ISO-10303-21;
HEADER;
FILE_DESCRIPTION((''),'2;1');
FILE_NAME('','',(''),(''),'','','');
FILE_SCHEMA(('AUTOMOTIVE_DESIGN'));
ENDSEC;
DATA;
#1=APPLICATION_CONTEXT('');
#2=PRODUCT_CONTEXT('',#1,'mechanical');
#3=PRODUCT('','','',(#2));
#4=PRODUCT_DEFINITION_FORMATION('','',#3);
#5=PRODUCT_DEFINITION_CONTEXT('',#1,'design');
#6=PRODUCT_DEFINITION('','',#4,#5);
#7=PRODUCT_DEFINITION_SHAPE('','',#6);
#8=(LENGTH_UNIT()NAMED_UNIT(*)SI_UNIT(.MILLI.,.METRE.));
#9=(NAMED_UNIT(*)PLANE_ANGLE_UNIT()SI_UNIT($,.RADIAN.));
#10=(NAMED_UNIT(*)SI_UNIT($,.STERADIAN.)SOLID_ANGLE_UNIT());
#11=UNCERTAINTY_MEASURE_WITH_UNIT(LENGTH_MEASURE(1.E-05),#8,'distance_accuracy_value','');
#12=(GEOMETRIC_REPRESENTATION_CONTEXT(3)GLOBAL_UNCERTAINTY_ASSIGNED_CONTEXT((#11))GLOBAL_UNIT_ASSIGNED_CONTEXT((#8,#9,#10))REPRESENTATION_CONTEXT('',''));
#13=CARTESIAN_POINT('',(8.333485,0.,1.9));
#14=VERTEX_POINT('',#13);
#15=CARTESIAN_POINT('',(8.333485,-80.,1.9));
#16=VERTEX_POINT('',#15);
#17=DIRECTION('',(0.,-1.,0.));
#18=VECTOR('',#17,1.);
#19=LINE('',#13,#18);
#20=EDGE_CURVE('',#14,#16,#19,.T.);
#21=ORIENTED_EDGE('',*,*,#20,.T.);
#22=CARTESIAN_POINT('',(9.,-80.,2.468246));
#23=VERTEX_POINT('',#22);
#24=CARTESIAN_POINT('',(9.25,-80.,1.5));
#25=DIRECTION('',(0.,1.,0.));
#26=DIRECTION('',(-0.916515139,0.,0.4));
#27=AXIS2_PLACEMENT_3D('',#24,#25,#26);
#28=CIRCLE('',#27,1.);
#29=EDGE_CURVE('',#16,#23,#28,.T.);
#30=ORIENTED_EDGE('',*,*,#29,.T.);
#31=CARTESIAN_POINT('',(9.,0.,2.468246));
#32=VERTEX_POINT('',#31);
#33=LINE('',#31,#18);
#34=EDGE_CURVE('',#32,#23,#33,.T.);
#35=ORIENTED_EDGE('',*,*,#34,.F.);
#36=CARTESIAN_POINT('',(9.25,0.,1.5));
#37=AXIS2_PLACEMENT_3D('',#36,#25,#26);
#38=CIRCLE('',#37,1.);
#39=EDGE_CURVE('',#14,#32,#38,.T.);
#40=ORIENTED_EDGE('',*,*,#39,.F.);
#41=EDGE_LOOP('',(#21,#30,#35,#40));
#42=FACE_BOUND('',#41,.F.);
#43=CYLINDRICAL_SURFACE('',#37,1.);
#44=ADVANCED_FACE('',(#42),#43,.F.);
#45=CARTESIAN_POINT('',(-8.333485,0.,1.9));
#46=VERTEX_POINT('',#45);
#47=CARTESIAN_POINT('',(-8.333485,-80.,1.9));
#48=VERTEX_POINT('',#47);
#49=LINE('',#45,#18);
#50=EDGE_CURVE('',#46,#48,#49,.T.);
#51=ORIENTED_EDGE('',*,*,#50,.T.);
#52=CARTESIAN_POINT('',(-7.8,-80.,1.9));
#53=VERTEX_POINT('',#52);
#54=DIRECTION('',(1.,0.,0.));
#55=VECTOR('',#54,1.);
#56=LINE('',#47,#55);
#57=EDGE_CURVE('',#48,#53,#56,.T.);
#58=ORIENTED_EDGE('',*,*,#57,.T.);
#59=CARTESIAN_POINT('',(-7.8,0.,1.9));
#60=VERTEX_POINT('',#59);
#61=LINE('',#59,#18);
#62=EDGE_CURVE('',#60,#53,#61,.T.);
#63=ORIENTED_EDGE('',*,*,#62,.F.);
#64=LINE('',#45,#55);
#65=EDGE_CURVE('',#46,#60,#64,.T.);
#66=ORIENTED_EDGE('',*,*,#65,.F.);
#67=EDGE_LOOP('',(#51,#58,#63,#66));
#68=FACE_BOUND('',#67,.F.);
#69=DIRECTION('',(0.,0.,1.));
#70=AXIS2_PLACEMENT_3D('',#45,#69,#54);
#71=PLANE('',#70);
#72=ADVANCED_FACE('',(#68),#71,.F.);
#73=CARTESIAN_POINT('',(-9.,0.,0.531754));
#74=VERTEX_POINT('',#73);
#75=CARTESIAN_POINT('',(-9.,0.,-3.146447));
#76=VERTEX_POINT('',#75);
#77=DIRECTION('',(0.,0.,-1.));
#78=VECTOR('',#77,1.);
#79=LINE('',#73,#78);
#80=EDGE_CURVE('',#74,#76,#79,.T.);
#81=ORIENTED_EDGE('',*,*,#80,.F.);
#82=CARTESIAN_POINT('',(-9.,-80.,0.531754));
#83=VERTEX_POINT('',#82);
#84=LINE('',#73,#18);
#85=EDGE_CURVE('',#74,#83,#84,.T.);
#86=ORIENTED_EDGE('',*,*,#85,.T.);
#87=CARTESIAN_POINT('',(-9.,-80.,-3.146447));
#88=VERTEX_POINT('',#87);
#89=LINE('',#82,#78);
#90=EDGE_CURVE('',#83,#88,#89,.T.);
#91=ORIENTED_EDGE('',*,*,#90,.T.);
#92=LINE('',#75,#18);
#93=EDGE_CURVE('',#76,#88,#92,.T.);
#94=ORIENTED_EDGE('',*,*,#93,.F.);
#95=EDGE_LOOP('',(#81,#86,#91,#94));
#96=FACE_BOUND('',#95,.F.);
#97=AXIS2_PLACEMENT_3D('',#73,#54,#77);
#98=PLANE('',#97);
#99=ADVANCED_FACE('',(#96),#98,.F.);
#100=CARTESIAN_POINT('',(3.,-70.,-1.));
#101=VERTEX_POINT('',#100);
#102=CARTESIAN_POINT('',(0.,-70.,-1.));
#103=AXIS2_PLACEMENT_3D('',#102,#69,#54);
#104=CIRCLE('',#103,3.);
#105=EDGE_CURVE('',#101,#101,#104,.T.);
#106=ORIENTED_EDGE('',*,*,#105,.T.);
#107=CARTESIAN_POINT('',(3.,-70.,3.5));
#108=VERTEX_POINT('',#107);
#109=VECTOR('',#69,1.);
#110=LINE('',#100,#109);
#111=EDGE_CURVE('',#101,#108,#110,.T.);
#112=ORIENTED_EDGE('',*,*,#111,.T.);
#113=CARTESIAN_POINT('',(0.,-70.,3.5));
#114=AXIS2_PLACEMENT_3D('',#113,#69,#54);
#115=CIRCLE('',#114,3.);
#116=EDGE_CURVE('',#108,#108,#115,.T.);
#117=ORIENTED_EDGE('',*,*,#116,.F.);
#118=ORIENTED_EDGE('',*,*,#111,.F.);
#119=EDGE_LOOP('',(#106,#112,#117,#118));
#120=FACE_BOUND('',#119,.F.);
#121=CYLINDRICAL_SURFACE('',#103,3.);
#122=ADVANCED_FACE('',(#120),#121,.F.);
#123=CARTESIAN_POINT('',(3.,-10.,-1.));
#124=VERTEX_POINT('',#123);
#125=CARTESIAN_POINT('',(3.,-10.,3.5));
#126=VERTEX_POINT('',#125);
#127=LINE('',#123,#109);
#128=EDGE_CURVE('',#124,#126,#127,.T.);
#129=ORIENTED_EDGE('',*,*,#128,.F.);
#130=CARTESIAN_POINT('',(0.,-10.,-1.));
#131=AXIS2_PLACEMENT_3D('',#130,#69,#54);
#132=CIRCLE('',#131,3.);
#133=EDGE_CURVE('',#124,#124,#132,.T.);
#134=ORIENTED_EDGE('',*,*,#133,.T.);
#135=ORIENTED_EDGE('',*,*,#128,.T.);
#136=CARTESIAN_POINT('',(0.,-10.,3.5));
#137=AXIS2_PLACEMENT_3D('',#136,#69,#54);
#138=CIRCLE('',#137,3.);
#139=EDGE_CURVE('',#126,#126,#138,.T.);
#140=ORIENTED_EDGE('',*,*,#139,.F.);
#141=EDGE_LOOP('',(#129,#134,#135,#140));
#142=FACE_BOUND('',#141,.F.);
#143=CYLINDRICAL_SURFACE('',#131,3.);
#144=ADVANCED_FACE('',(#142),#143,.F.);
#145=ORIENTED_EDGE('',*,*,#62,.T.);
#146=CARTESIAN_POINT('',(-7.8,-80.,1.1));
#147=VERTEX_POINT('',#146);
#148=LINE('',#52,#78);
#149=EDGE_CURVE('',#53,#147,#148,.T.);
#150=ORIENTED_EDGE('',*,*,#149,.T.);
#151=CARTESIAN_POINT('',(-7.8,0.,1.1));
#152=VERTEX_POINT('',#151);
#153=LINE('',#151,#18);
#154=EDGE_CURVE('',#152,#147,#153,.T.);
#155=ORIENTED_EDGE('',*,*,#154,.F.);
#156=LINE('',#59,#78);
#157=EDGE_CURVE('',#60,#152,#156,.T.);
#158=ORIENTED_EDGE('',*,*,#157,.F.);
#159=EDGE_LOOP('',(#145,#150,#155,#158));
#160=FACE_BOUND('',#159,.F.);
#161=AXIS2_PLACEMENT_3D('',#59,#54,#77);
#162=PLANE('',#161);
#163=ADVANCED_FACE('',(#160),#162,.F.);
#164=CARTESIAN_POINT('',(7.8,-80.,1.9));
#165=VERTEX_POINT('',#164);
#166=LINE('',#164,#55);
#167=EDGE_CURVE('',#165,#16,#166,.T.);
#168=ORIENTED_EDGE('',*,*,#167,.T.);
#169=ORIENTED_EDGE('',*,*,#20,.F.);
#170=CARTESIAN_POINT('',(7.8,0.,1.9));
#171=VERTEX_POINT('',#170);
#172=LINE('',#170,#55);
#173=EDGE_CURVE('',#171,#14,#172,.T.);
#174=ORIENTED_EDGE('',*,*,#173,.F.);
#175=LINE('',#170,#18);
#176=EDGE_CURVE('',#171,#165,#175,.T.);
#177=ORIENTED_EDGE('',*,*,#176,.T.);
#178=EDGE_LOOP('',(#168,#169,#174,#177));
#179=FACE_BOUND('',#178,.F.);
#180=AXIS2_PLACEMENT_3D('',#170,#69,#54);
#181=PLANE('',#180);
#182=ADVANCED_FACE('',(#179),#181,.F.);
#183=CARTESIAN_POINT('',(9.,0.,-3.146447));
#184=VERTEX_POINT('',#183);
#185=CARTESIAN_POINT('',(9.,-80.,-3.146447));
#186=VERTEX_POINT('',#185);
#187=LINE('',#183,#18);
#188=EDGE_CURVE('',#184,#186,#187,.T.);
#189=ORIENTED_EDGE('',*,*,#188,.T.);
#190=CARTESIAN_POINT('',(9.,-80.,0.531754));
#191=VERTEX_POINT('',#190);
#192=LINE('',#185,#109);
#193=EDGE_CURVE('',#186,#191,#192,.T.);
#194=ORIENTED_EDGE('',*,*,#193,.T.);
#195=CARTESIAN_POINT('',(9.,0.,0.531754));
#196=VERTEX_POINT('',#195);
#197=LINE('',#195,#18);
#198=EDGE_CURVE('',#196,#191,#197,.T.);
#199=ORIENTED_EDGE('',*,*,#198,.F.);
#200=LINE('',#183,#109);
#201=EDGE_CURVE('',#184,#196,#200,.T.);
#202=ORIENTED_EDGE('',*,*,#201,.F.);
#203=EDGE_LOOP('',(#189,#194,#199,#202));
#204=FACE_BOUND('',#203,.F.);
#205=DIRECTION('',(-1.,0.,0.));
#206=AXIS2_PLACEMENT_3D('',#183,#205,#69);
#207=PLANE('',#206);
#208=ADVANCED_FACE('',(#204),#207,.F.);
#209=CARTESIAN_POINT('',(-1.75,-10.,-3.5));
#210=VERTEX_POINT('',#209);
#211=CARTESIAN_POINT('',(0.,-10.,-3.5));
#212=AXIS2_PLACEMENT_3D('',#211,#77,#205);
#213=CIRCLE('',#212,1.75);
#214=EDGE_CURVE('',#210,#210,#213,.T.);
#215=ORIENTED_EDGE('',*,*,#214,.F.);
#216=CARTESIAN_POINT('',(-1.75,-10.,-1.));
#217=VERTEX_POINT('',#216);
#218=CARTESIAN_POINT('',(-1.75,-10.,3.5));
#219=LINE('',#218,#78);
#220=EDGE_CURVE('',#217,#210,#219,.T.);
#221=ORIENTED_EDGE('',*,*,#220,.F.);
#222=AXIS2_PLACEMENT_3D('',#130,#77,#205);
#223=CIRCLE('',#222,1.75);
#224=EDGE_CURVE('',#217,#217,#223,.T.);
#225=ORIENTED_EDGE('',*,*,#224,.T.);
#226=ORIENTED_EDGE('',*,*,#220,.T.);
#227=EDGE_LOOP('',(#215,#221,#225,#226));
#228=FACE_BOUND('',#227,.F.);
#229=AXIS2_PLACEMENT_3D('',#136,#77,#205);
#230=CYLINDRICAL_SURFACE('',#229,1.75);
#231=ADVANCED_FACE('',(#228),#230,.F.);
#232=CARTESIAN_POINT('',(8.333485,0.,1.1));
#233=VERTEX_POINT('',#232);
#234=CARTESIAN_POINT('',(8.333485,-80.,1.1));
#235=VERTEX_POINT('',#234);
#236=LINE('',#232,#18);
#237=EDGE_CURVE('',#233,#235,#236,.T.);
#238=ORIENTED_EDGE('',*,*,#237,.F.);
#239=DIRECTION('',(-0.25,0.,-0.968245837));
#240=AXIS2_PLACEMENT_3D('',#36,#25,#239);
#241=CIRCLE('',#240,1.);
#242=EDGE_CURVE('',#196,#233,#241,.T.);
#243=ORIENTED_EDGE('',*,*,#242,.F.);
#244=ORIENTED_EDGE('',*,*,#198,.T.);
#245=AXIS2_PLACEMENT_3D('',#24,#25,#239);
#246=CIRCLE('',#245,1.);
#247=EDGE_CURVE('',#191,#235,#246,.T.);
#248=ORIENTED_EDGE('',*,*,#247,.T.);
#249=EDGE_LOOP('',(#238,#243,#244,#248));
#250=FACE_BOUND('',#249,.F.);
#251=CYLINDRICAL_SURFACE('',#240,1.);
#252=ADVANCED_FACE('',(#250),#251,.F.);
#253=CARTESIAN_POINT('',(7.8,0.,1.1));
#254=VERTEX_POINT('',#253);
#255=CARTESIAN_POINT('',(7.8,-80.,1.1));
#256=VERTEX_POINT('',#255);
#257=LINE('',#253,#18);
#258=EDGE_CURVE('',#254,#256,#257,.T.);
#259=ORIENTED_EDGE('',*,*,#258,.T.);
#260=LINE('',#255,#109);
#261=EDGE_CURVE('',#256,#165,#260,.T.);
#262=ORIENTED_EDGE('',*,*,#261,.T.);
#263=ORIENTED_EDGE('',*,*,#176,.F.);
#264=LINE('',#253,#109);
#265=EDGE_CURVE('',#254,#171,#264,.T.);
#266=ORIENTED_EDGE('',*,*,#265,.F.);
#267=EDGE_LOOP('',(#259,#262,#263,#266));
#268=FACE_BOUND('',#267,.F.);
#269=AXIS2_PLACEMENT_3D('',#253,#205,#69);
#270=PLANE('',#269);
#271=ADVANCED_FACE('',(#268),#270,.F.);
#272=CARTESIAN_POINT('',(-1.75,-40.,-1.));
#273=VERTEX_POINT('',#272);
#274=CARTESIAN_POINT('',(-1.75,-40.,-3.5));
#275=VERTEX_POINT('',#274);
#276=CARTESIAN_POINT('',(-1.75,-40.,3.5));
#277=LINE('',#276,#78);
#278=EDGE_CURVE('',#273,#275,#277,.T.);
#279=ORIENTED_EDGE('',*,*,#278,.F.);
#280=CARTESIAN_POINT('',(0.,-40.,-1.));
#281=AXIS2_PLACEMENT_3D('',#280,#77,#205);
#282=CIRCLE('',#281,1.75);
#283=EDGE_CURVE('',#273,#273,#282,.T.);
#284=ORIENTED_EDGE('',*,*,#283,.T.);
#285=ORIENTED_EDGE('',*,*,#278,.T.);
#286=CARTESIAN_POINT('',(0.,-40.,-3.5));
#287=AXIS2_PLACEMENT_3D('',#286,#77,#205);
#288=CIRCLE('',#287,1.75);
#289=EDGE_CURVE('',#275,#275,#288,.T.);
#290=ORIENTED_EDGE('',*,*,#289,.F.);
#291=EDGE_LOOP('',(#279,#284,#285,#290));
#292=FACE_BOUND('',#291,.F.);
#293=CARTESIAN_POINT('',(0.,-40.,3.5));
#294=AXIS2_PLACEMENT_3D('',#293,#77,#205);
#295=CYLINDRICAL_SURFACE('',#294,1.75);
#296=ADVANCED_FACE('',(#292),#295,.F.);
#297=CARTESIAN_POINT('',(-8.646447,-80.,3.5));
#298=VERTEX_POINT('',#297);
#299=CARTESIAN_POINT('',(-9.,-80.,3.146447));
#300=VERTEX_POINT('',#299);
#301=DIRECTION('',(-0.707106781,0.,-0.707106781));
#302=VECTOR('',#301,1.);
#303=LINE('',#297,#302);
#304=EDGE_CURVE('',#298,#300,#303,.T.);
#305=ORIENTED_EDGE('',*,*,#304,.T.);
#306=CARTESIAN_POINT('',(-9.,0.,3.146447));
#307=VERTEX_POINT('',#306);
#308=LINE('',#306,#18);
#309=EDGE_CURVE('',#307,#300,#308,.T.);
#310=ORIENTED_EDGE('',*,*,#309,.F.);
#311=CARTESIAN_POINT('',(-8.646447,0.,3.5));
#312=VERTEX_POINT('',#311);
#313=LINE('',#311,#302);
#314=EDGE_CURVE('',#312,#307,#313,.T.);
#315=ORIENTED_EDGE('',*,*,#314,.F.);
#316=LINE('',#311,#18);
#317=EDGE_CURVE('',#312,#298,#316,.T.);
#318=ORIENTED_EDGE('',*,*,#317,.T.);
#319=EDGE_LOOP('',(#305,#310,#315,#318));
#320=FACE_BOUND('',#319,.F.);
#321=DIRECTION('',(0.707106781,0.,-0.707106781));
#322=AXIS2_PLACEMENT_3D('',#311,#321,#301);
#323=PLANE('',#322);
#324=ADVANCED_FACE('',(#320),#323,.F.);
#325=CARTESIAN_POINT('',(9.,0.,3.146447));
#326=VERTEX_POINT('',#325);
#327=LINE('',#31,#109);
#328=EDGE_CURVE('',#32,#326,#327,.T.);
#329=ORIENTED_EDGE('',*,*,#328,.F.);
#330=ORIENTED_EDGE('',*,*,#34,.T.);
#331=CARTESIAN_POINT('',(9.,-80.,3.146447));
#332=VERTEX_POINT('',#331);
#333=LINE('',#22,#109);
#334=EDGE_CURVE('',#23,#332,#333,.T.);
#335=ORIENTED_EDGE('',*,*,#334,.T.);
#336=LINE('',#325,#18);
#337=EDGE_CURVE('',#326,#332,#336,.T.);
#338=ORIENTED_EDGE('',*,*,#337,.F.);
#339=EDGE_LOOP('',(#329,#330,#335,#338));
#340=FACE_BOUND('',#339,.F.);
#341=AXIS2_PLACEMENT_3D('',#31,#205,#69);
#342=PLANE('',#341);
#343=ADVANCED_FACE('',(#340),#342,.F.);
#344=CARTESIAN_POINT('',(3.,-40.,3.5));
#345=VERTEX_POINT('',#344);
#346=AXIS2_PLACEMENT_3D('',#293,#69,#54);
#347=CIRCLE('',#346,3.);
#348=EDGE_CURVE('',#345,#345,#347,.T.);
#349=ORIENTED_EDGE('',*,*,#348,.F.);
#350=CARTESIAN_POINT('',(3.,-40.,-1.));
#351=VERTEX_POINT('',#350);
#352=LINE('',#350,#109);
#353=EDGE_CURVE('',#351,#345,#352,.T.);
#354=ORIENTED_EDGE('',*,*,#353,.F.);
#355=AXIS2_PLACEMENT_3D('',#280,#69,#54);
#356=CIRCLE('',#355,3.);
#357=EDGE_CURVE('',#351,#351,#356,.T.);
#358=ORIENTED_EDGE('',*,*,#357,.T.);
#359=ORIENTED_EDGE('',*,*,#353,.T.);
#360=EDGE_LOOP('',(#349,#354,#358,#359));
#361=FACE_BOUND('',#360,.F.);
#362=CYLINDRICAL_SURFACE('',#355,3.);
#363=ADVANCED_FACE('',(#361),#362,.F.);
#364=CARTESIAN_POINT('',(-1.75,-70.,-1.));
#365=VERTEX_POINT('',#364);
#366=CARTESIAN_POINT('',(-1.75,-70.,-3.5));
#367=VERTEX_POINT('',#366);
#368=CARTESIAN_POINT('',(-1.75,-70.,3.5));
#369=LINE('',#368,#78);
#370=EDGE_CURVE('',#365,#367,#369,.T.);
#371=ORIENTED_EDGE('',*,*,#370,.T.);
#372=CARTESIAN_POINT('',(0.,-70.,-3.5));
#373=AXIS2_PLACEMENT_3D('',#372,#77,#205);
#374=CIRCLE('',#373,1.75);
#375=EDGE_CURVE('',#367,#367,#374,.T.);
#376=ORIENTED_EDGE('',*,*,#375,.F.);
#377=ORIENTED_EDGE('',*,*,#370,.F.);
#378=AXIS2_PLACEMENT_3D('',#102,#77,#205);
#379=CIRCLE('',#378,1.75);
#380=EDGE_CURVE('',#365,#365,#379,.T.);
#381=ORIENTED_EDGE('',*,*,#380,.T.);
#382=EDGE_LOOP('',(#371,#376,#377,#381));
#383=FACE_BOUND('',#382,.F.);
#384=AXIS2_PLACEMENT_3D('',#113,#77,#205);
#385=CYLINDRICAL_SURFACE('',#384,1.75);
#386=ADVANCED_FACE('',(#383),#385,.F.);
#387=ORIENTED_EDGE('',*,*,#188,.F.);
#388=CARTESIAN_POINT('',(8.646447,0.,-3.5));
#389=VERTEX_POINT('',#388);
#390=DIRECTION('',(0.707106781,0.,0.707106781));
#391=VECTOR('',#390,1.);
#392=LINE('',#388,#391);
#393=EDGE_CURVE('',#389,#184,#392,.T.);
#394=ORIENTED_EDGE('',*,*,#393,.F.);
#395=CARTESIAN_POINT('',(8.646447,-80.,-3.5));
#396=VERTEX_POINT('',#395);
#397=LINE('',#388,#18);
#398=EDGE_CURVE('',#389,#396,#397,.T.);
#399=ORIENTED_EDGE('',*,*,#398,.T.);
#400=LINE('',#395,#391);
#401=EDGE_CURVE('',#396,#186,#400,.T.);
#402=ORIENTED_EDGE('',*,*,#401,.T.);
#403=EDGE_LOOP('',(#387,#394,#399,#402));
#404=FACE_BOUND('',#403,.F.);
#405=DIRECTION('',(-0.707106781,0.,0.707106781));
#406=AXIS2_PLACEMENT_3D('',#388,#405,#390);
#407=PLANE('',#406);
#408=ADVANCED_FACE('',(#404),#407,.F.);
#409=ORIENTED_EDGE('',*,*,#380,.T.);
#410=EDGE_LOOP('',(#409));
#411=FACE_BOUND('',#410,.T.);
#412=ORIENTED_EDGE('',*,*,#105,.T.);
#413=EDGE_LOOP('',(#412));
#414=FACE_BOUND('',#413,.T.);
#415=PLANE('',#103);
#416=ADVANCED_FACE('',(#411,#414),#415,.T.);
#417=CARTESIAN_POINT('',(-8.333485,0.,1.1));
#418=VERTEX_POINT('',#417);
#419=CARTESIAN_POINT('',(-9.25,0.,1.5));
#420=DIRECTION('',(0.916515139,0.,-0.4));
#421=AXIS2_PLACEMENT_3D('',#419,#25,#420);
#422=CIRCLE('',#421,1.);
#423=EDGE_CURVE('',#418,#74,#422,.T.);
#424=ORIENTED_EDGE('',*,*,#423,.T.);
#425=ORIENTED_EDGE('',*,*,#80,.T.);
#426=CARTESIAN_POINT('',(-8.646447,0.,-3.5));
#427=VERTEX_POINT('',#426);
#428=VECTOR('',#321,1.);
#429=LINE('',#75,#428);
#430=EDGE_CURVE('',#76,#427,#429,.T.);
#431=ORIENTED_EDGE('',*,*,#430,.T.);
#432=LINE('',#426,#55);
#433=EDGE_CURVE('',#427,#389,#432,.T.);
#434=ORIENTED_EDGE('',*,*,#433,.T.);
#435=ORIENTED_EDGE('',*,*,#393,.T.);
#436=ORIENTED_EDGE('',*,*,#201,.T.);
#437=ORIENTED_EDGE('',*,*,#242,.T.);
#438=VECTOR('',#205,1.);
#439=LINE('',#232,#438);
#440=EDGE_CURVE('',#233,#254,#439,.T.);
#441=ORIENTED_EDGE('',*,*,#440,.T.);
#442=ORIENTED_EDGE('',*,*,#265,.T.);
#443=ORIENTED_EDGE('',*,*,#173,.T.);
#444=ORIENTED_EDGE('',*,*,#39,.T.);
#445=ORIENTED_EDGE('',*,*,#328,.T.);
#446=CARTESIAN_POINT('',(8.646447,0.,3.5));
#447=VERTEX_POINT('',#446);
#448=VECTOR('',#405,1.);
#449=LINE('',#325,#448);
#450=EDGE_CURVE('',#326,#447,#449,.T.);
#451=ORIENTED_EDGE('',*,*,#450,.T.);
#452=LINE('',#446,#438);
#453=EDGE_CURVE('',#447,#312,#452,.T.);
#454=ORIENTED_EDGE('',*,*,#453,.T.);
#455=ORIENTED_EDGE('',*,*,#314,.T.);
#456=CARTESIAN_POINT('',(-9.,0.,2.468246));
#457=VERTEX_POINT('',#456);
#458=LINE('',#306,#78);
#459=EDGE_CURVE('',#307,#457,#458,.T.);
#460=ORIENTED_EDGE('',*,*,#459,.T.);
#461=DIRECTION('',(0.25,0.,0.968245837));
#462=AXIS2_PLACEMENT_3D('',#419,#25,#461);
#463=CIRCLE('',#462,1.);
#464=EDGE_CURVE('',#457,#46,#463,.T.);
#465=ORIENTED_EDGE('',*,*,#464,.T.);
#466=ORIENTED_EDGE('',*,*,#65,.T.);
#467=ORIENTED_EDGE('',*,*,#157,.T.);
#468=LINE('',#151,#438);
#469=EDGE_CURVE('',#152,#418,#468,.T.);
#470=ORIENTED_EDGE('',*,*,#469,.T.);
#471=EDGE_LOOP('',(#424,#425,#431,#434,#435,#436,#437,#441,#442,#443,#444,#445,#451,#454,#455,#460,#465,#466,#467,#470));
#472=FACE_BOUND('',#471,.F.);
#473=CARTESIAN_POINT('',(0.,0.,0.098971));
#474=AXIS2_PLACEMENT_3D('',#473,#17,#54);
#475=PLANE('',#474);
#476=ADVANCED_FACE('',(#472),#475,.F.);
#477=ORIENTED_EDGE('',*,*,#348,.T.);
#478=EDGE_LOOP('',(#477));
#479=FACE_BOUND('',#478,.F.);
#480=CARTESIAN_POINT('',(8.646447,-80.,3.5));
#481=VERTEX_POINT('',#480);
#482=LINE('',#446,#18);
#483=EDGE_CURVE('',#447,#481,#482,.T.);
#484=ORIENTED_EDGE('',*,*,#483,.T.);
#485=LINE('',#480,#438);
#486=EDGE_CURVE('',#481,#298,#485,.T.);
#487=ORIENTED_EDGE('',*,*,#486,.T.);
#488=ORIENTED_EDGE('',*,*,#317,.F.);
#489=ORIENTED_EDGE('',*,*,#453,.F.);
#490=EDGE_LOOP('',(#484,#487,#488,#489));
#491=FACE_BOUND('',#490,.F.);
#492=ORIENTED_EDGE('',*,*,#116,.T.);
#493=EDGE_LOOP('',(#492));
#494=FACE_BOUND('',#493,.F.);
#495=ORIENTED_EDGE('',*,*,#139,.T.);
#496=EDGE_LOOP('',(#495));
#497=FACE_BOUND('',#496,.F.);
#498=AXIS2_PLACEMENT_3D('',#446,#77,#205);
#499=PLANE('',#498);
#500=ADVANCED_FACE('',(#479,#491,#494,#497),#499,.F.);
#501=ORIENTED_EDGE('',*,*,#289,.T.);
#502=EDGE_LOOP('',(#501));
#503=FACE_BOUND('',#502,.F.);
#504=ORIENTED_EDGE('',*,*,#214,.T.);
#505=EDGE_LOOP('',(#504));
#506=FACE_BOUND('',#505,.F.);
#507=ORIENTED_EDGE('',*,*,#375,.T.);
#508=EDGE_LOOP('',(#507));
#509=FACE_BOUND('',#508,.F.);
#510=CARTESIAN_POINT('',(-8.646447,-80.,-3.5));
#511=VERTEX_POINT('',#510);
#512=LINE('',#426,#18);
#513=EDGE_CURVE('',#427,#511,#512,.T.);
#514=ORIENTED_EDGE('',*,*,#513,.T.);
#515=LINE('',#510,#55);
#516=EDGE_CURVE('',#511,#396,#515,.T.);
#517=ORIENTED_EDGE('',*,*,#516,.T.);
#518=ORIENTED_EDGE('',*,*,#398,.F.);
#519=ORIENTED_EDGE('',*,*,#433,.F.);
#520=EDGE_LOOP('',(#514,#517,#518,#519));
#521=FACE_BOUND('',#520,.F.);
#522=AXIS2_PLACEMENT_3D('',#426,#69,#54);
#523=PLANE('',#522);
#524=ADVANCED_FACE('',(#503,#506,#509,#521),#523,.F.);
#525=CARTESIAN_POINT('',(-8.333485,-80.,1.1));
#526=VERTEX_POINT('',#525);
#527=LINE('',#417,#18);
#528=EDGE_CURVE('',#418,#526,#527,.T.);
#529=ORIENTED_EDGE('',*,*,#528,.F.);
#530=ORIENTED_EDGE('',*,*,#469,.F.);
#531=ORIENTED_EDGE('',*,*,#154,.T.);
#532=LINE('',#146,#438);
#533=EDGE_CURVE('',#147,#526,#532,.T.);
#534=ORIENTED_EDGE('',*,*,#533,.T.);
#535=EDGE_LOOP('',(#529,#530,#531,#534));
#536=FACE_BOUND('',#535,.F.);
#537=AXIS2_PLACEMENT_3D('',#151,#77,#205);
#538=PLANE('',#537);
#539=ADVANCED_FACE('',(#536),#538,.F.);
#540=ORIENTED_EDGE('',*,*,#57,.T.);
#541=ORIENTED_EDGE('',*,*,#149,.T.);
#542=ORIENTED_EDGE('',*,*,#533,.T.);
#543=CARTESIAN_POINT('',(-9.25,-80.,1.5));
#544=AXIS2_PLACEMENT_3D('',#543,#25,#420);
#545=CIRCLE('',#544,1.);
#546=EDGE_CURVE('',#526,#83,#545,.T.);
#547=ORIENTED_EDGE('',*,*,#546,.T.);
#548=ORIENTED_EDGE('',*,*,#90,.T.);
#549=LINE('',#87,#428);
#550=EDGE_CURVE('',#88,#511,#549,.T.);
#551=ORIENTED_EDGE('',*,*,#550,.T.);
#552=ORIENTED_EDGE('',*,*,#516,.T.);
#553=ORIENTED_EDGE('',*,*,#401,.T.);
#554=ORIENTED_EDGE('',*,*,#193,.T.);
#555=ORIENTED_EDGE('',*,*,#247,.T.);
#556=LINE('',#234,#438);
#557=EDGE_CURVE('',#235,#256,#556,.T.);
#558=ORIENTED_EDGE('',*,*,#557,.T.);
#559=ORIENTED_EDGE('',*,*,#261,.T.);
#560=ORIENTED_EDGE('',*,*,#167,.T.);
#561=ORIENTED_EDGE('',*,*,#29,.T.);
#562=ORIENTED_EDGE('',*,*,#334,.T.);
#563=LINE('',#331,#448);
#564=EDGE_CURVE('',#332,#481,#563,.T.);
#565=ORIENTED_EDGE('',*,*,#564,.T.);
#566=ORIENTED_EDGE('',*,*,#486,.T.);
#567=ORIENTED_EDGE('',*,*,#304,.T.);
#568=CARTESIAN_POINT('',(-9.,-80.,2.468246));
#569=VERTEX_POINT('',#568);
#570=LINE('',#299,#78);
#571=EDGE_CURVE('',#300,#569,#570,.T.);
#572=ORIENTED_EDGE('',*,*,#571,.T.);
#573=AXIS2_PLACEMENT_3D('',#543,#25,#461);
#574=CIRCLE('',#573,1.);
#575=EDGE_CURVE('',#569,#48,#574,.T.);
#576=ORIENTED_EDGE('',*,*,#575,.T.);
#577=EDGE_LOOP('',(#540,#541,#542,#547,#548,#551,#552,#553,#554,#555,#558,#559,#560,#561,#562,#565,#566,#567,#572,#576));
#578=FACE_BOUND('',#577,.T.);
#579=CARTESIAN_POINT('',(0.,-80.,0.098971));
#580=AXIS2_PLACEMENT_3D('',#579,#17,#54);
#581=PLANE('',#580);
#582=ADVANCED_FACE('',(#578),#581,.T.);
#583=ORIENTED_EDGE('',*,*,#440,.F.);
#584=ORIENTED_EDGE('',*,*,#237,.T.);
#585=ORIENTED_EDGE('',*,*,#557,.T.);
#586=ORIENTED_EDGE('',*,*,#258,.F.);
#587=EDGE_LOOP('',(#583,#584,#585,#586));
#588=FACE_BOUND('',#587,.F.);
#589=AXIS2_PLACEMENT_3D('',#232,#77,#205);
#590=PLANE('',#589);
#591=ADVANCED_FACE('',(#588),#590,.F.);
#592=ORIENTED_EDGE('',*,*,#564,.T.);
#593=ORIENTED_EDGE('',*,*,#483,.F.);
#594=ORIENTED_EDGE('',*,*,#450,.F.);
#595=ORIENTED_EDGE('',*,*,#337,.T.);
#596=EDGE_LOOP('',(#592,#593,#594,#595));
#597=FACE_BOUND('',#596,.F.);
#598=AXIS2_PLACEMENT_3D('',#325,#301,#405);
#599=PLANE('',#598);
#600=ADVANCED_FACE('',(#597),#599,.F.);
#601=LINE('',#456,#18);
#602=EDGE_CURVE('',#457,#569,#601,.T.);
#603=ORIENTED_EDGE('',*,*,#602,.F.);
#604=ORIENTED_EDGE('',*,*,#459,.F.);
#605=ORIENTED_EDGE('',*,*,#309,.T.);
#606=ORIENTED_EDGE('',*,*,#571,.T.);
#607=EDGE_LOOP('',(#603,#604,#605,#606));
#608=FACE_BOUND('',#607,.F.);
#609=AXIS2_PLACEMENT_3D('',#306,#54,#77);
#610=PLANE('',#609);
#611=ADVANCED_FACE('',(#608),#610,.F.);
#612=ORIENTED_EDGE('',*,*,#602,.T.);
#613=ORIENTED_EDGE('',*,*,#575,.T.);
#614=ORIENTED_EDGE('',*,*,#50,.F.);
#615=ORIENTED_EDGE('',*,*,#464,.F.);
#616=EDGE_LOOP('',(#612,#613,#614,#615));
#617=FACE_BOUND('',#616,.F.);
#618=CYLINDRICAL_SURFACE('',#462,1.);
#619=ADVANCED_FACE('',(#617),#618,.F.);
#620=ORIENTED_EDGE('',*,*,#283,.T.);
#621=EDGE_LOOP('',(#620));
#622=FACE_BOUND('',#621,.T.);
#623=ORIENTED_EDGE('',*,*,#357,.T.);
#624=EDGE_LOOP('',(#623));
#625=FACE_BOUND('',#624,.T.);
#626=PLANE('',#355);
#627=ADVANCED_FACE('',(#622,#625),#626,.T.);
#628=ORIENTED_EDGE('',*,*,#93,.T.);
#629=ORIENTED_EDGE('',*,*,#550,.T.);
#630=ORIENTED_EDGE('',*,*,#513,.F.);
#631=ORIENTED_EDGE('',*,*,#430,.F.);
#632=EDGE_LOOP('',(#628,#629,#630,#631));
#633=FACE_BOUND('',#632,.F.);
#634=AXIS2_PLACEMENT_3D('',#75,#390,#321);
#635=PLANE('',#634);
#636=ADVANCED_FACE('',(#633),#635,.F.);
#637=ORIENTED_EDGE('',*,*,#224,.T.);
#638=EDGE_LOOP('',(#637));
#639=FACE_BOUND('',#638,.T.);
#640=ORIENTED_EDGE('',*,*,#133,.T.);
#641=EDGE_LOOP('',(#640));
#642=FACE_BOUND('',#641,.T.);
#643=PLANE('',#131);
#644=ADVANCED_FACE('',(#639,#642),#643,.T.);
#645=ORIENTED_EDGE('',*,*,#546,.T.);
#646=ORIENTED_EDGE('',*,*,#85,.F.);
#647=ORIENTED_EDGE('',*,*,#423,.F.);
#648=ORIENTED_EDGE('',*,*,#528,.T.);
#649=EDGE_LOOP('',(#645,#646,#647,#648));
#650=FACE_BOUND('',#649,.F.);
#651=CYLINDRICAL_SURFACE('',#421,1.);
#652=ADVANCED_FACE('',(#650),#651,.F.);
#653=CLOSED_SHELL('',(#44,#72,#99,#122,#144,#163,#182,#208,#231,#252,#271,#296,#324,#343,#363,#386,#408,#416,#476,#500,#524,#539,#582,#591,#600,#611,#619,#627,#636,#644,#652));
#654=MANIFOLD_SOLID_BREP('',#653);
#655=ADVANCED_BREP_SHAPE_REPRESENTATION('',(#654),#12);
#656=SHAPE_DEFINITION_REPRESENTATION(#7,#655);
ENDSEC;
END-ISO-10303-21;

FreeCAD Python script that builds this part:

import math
import FreeCAD as App
import Part
import Sketcher

V = App.Vector
Q = App.Units.Quantity

doc = App.newDocument("Part")
body = doc.addObject("PartDesign::Body", "Body")

sketch1 = doc.addObject("Sketcher::SketchObject", "Sketch")
body.addObject(sketch1)
sketch1.AttachmentSupport = (doc.XZ_Plane, [""])
sketch1.MapMode = "FlatFace"
sketch1.addGeometry(Part.LineSegment(V(-8.646447, -3.5, 0), V(8.646447, -3.5, 0)), False)
sketch1.addGeometry(Part.LineSegment(V(8.646447, -3.5, 0), V(9, -3.146447, 0)), False)
sketch1.addGeometry(Part.LineSegment(V(9, -3.146447, 0), V(9, 0.531754, 0)), False)
sketch1.addGeometry(Part.ArcOfCircle(Part.Circle(V(9.25, 1.5, 0), V(0, 0, 1), 1), math.radians(-156.421822), math.radians(-104.477512)), False)
sketch1.addGeometry(Part.LineSegment(V(8.333485, 1.1, 0), V(7.8, 1.1, 0)), False)
sketch1.addGeometry(Part.LineSegment(V(7.8, 1.1, 0), V(7.8, 1.9, 0)), False)
sketch1.addGeometry(Part.LineSegment(V(7.8, 1.9, 0), V(8.333485, 1.9, 0)), False)
sketch1.addGeometry(Part.ArcOfCircle(Part.Circle(V(9.25, 1.5, 0), V(0, 0, 1), 1), math.radians(104.477512), math.radians(156.421822)), False)
sketch1.addGeometry(Part.LineSegment(V(9, 2.468246, 0), V(9, 3.146447, 0)), False)
sketch1.addGeometry(Part.LineSegment(V(9, 3.146447, 0), V(8.646447, 3.5, 0)), False)
sketch1.addGeometry(Part.LineSegment(V(8.646447, 3.5, 0), V(-8.646447, 3.5, 0)), False)
sketch1.addGeometry(Part.LineSegment(V(-8.646447, 3.5, 0), V(-9, 3.146447, 0)), False)
sketch1.addGeometry(Part.LineSegment(V(-9, 3.146447, 0), V(-9, 2.468246, 0)), False)
sketch1.addGeometry(Part.ArcOfCircle(Part.Circle(V(-9.25, 1.5, 0), V(0, 0, 1), 1), math.radians(23.578178), math.radians(75.522488)), False)
sketch1.addGeometry(Part.LineSegment(V(-8.333485, 1.9, 0), V(-7.8, 1.9, 0)), False)
sketch1.addGeometry(Part.LineSegment(V(-7.8, 1.9, 0), V(-7.8, 1.1, 0)), False)
sketch1.addGeometry(Part.LineSegment(V(-7.8, 1.1, 0), V(-8.333485, 1.1, 0)), False)
sketch1.addGeometry(Part.ArcOfCircle(Part.Circle(V(-9.25, 1.5, 0), V(0, 0, 1), 1), math.radians(-75.522488), math.radians(-23.578178)), False)
sketch1.addGeometry(Part.LineSegment(V(-9, 0.531754, 0), V(-9, -3.146447, 0)), False)
sketch1.addGeometry(Part.LineSegment(V(-9, -3.146447, 0), V(-8.646447, -3.5, 0)), False)
sketch1.addConstraint(Sketcher.Constraint("Coincident", 0, 2, 1, 1))
sketch1.addConstraint(Sketcher.Constraint("Coincident", 1, 2, 2, 1))
sketch1.addConstraint(Sketcher.Constraint("Coincident", 2, 2, 3, 2))
sketch1.addConstraint(Sketcher.Constraint("Coincident", 3, 1, 4, 1))
sketch1.addConstraint(Sketcher.Constraint("Coincident", 4, 2, 5, 1))
sketch1.addConstraint(Sketcher.Constraint("Coincident", 5, 2, 6, 1))
sketch1.addConstraint(Sketcher.Constraint("Coincident", 6, 2, 7, 2))
sketch1.addConstraint(Sketcher.Constraint("Coincident", 7, 1, 8, 1))
sketch1.addConstraint(Sketcher.Constraint("Coincident", 8, 2, 9, 1))
sketch1.addConstraint(Sketcher.Constraint("Coincident", 9, 2, 10, 1))
sketch1.addConstraint(Sketcher.Constraint("Coincident", 10, 2, 11, 1))
sketch1.addConstraint(Sketcher.Constraint("Coincident", 11, 2, 12, 1))
sketch1.addConstraint(Sketcher.Constraint("Coincident", 12, 2, 13, 2))
sketch1.addConstraint(Sketcher.Constraint("Coincident", 13, 1, 14, 1))
sketch1.addConstraint(Sketcher.Constraint("Coincident", 14, 2, 15, 1))
sketch1.addConstraint(Sketcher.Constraint("Coincident", 15, 2, 16, 1))
sketch1.addConstraint(Sketcher.Constraint("Coincident", 16, 2, 17, 2))
sketch1.addConstraint(Sketcher.Constraint("Coincident", 17, 1, 18, 1))
sketch1.addConstraint(Sketcher.Constraint("Coincident", 18, 2, 19, 1))
sketch1.addConstraint(Sketcher.Constraint("Coincident", 19, 2, 0, 1))
sketch1.addConstraint(Sketcher.Constraint("Horizontal", 0))
sketch1.addConstraint(Sketcher.Constraint("Vertical", 2))
sketch1.addConstraint(Sketcher.Constraint("Horizontal", 4))
sketch1.addConstraint(Sketcher.Constraint("Vertical", 5))
sketch1.addConstraint(Sketcher.Constraint("Horizontal", 6))
sketch1.addConstraint(Sketcher.Constraint("Vertical", 8))
sketch1.addConstraint(Sketcher.Constraint("Horizontal", 10))
sketch1.addConstraint(Sketcher.Constraint("Vertical", 12))
sketch1.addConstraint(Sketcher.Constraint("Horizontal", 14))
sketch1.addConstraint(Sketcher.Constraint("Vertical", 15))
sketch1.addConstraint(Sketcher.Constraint("Horizontal", 16))
sketch1.addConstraint(Sketcher.Constraint("Vertical", 18))
sketch1.addConstraint(Sketcher.Constraint("Coincident", 7, 3, 3, 3))
sketch1.addConstraint(Sketcher.Constraint("Coincident", 17, 3, 13, 3))
sketch1.addConstraint(Sketcher.Constraint("Equal", 3, 7))
sketch1.addConstraint(Sketcher.Constraint("Equal", 7, 13))
sketch1.addConstraint(Sketcher.Constraint("Equal", 13, 17))
sketch1.addConstraint(Sketcher.Constraint("Symmetric", 0, 2, 10, 2, -1, 1))
sketch1.addConstraint(Sketcher.Constraint("Symmetric", 1, 2, 11, 2, -1, 1))
sketch1.addConstraint(Sketcher.Constraint("Symmetric", 8, 2, 18, 2, -1, 1))
sketch1.addConstraint(Sketcher.Constraint("Symmetric", 3, 3, 13, 3, -2))
sketch1.addConstraint(Sketcher.Constraint("Symmetric", 8, 2, 11, 2, -2))
sketch1.addConstraint(Sketcher.Constraint("Symmetric", 5, 2, 14, 2, -2))
sketch1.addConstraint(Sketcher.Constraint("Perpendicular", 1, 9))
sketch1.addConstraint(Sketcher.Constraint("Perpendicular", 11, 19))
sketch1.addConstraint(Sketcher.Constraint("Horizontal", 4, 2, 15, 2))
sketch1.addConstraint(Sketcher.Constraint("Vertical", 3, 1, 6, 2))
sketch1.addConstraint(Sketcher.Constraint("Vertical", 0, 2, 9, 2))
sketch1.addConstraint(Sketcher.Constraint("Radius", 3, Q("1 mm")))
sketch1.addConstraint(Sketcher.Constraint("DistanceY", 5, 1, 5, 2, Q("0.8 mm")))
sketch1.addConstraint(Sketcher.Constraint("DistanceX", -1, 1, 1, 2, Q("9 mm")))
sketch1.addConstraint(Sketcher.Constraint("DistanceY", 0, 2, 3, 3, Q("5 mm")))
sketch1.addConstraint(Sketcher.Constraint("DistanceY", 3, 3, 9, 2, Q("2 mm")))
sketch1.addConstraint(Sketcher.Constraint("Distance", 1, Q("0.5 mm")))
sketch1.addConstraint(Sketcher.Constraint("DistanceX", -1, 1, 4, 2, Q("7.8 mm")))
sketch1.addConstraint(Sketcher.Constraint("DistanceX", 13, 3, 3, 3, Q("18.5 mm")))
pad1 = doc.addObject("PartDesign::Pad", "Pad")
body.addObject(pad1)
pad1.Profile = sketch1
pad1.Length = 80

sketch2 = doc.addObject("Sketcher::SketchObject", "Sketch001")
body.addObject(sketch2)
sketch2.AttachmentSupport = (doc.XY_Plane, [""])
sketch2.MapMode = "FlatFace"
sketch2.AttachmentOffset = App.Placement(V(0, 0, 3.5), App.Rotation())
sketch2.addGeometry(Part.Circle(V(0, -460, 0), V(0, 0, 1), 1.75), False)
sketch2.addGeometry(Part.Circle(V(0, -1090, 0), V(0, 0, 1), 1.75), False)
sketch2.addGeometry(Part.Circle(V(0, -790, 0), V(0, 0, 1), 1.75), False)
sketch2.addGeometry(Part.Circle(V(0, -160, 0), V(0, 0, 1), 1.75), False)
sketch2.addGeometry(Part.Circle(V(0, -580, 0), V(0, 0, 1), 1.75), False)
sketch2.addGeometry(Part.Circle(V(0, -640, 0), V(0, 0, 1), 1.75), False)
sketch2.addGeometry(Part.Circle(V(0, -190, 0), V(0, 0, 1), 1.75), False)
sketch2.addGeometry(Part.Circle(V(0, -10, 0), V(0, 0, 1), 1.75), False)
sketch2.addGeometry(Part.Circle(V(0, -130, 0), V(0, 0, 1), 1.75), False)
sketch2.addGeometry(Part.Circle(V(0, -730, 0), V(0, 0, 1), 1.75), False)
sketch2.addGeometry(Part.Circle(V(0, -100, 0), V(0, 0, 1), 1.75), False)
sketch2.addGeometry(Part.Circle(V(0, -610, 0), V(0, 0, 1), 1.75), False)
sketch2.addGeometry(Part.Circle(V(0, -40, 0), V(0, 0, 1), 1.75), False)
sketch2.addGeometry(Part.Circle(V(0, -1180, 0), V(0, 0, 1), 1.75), False)
sketch2.addGeometry(Part.Circle(V(0, -340, 0), V(0, 0, 1), 1.75), False)
sketch2.addGeometry(Part.Circle(V(0, -1150, 0), V(0, 0, 1), 1.75), False)
sketch2.addGeometry(Part.Circle(V(0, -1120, 0), V(0, 0, 1), 1.75), False)
sketch2.addGeometry(Part.Circle(V(0, -760, 0), V(0, 0, 1), 1.75), False)
sketch2.addGeometry(Part.Circle(V(0, -940, 0), V(0, 0, 1), 1.75), False)
sketch2.addGeometry(Part.Circle(V(0, -1030, 0), V(0, 0, 1), 1.75), False)
sketch2.addGeometry(Part.Circle(V(0, -700, 0), V(0, 0, 1), 1.75), False)
sketch2.addGeometry(Part.Circle(V(0, -400, 0), V(0, 0, 1), 1.75), False)
sketch2.addGeometry(Part.Circle(V(0, -550, 0), V(0, 0, 1), 1.75), False)
sketch2.addGeometry(Part.Circle(V(0, -490, 0), V(0, 0, 1), 1.75), False)
sketch2.addGeometry(Part.Circle(V(0, -910, 0), V(0, 0, 1), 1.75), False)
sketch2.addGeometry(Part.Circle(V(0, -220, 0), V(0, 0, 1), 1.75), False)
sketch2.addGeometry(Part.Circle(V(0, -670, 0), V(0, 0, 1), 1.75), False)
sketch2.addGeometry(Part.Circle(V(0, -280, 0), V(0, 0, 1), 1.75), False)
sketch2.addGeometry(Part.Circle(V(0, -970, 0), V(0, 0, 1), 1.75), False)
sketch2.addGeometry(Part.Circle(V(0, -850, 0), V(0, 0, 1), 1.75), False)
sketch2.addGeometry(Part.Circle(V(0, -310, 0), V(0, 0, 1), 1.75), False)
sketch2.addGeometry(Part.Circle(V(0, -70, 0), V(0, 0, 1), 1.75), False)
sketch2.addGeometry(Part.Circle(V(0, -1060, 0), V(0, 0, 1), 1.75), False)
sketch2.addGeometry(Part.Circle(V(0, -880, 0), V(0, 0, 1), 1.75), False)
sketch2.addGeometry(Part.Circle(V(0, -1000, 0), V(0, 0, 1), 1.75), False)
sketch2.addGeometry(Part.Circle(V(0, -520, 0), V(0, 0, 1), 1.75), False)
sketch2.addGeometry(Part.Circle(V(0, -250, 0), V(0, 0, 1), 1.75), False)
sketch2.addGeometry(Part.Circle(V(0, -370, 0), V(0, 0, 1), 1.75), False)
sketch2.addGeometry(Part.Circle(V(0, -820, 0), V(0, 0, 1), 1.75), False)
sketch2.addGeometry(Part.Circle(V(0, -430, 0), V(0, 0, 1), 1.75), False)
sketch2.addGeometry(Part.Circle(V(0, -1420, 0), V(0, 0, 1), 1.75), False)
sketch2.addGeometry(Part.Circle(V(0, -1900, 0), V(0, 0, 1), 1.75), False)
sketch2.addGeometry(Part.Circle(V(0, -1450, 0), V(0, 0, 1), 1.75), False)
sketch2.addGeometry(Part.Circle(V(0, -1330, 0), V(0, 0, 1), 1.75), False)
sketch2.addGeometry(Part.Circle(V(0, -1510, 0), V(0, 0, 1), 1.75), False)
sketch2.addGeometry(Part.Circle(V(0, -1540, 0), V(0, 0, 1), 1.75), False)
sketch2.addGeometry(Part.Circle(V(0, -1930, 0), V(0, 0, 1), 1.75), False)
sketch2.addGeometry(Part.Circle(V(0, -1960, 0), V(0, 0, 1), 1.75), False)
sketch2.addGeometry(Part.Circle(V(0, -1480, 0), V(0, 0, 1), 1.75), False)
sketch2.addGeometry(Part.Circle(V(0, -1390, 0), V(0, 0, 1), 1.75), False)
sketch2.addGeometry(Part.Circle(V(0, -1870, 0), V(0, 0, 1), 1.75), False)
sketch2.addGeometry(Part.Circle(V(0, -1570, 0), V(0, 0, 1), 1.75), False)
sketch2.addGeometry(Part.Circle(V(0, -1360, 0), V(0, 0, 1), 1.75), False)
sketch2.addGeometry(Part.Circle(V(0, -1210, 0), V(0, 0, 1), 1.75), False)
sketch2.addGeometry(Part.Circle(V(0, -1810, 0), V(0, 0, 1), 1.75), False)
sketch2.addGeometry(Part.Circle(V(0, -1690, 0), V(0, 0, 1), 1.75), False)
sketch2.addGeometry(Part.Circle(V(0, -1840, 0), V(0, 0, 1), 1.75), False)
sketch2.addGeometry(Part.Circle(V(0, -1630, 0), V(0, 0, 1), 1.75), False)
sketch2.addGeometry(Part.Circle(V(0, -1240, 0), V(0, 0, 1), 1.75), False)
sketch2.addGeometry(Part.Circle(V(0, -1270, 0), V(0, 0, 1), 1.75), False)
sketch2.addGeometry(Part.Circle(V(0, -1600, 0), V(0, 0, 1), 1.75), False)
sketch2.addGeometry(Part.Circle(V(0, -1780, 0), V(0, 0, 1), 1.75), False)
sketch2.addGeometry(Part.Circle(V(0, -1300, 0), V(0, 0, 1), 1.75), False)
sketch2.addGeometry(Part.Circle(V(0, -1720, 0), V(0, 0, 1), 1.75), False)
sketch2.addGeometry(Part.Circle(V(0, -1750, 0), V(0, 0, 1), 1.75), False)
sketch2.addGeometry(Part.Circle(V(0, -1660, 0), V(0, 0, 1), 1.75), False)
sketch2.addConstraint(Sketcher.Constraint("Equal", 0, 1))
sketch2.addConstraint(Sketcher.Constraint("Equal", 1, 2))
sketch2.addConstraint(Sketcher.Constraint("Equal", 2, 3))
sketch2.addConstraint(Sketcher.Constraint("Equal", 3, 4))
sketch2.addConstraint(Sketcher.Constraint("Equal", 4, 5))
sketch2.addConstraint(Sketcher.Constraint("Equal", 5, 6))
sketch2.addConstraint(Sketcher.Constraint("Equal", 6, 7))
sketch2.addConstraint(Sketcher.Constraint("Equal", 7, 8))
sketch2.addConstraint(Sketcher.Constraint("Equal", 8, 9))
sketch2.addConstraint(Sketcher.Constraint("Equal", 9, 10))
sketch2.addConstraint(Sketcher.Constraint("Equal", 10, 11))
sketch2.addConstraint(Sketcher.Constraint("Equal", 11, 12))
sketch2.addConstraint(Sketcher.Constraint("Equal", 12, 13))
sketch2.addConstraint(Sketcher.Constraint("Equal", 13, 14))
sketch2.addConstraint(Sketcher.Constraint("Equal", 14, 15))
sketch2.addConstraint(Sketcher.Constraint("Equal", 15, 16))
sketch2.addConstraint(Sketcher.Constraint("Equal", 16, 17))
sketch2.addConstraint(Sketcher.Constraint("Equal", 17, 18))
sketch2.addConstraint(Sketcher.Constraint("Equal", 18, 19))
sketch2.addConstraint(Sketcher.Constraint("Equal", 19, 20))
sketch2.addConstraint(Sketcher.Constraint("Equal", 20, 21))
sketch2.addConstraint(Sketcher.Constraint("Equal", 21, 22))
sketch2.addConstraint(Sketcher.Constraint("Equal", 22, 23))
sketch2.addConstraint(Sketcher.Constraint("Equal", 23, 24))
sketch2.addConstraint(Sketcher.Constraint("Equal", 24, 25))
sketch2.addConstraint(Sketcher.Constraint("Equal", 25, 26))
sketch2.addConstraint(Sketcher.Constraint("Equal", 26, 27))
sketch2.addConstraint(Sketcher.Constraint("Equal", 27, 28))
sketch2.addConstraint(Sketcher.Constraint("Equal", 28, 29))
sketch2.addConstraint(Sketcher.Constraint("Equal", 29, 30))
sketch2.addConstraint(Sketcher.Constraint("Equal", 30, 31))
sketch2.addConstraint(Sketcher.Constraint("Equal", 31, 32))
sketch2.addConstraint(Sketcher.Constraint("Equal", 32, 33))
sketch2.addConstraint(Sketcher.Constraint("Equal", 33, 34))
sketch2.addConstraint(Sketcher.Constraint("Equal", 34, 35))
sketch2.addConstraint(Sketcher.Constraint("Equal", 35, 36))
sketch2.addConstraint(Sketcher.Constraint("Equal", 36, 37))
sketch2.addConstraint(Sketcher.Constraint("Equal", 37, 38))
sketch2.addConstraint(Sketcher.Constraint("Equal", 38, 39))
sketch2.addConstraint(Sketcher.Constraint("Equal", 39, 40))
sketch2.addConstraint(Sketcher.Constraint("Equal", 40, 41))
sketch2.addConstraint(Sketcher.Constraint("Equal", 41, 42))
sketch2.addConstraint(Sketcher.Constraint("Equal", 42, 43))
sketch2.addConstraint(Sketcher.Constraint("Equal", 43, 44))
sketch2.addConstraint(Sketcher.Constraint("Equal", 44, 45))
sketch2.addConstraint(Sketcher.Constraint("Equal", 45, 46))
sketch2.addConstraint(Sketcher.Constraint("Equal", 46, 47))
sketch2.addConstraint(Sketcher.Constraint("Equal", 47, 48))
sketch2.addConstraint(Sketcher.Constraint("Equal", 48, 49))
sketch2.addConstraint(Sketcher.Constraint("Equal", 49, 50))
sketch2.addConstraint(Sketcher.Constraint("Equal", 50, 51))
sketch2.addConstraint(Sketcher.Constraint("Equal", 51, 52))
sketch2.addConstraint(Sketcher.Constraint("Equal", 52, 53))
sketch2.addConstraint(Sketcher.Constraint("Equal", 53, 54))
sketch2.addConstraint(Sketcher.Constraint("Equal", 54, 55))
sketch2.addConstraint(Sketcher.Constraint("Equal", 55, 56))
sketch2.addConstraint(Sketcher.Constraint("Equal", 56, 57))
sketch2.addConstraint(Sketcher.Constraint("Equal", 57, 58))
sketch2.addConstraint(Sketcher.Constraint("Equal", 58, 59))
sketch2.addConstraint(Sketcher.Constraint("Equal", 59, 60))
sketch2.addConstraint(Sketcher.Constraint("Equal", 60, 61))
sketch2.addConstraint(Sketcher.Constraint("Equal", 61, 62))
sketch2.addConstraint(Sketcher.Constraint("Equal", 62, 63))
sketch2.addConstraint(Sketcher.Constraint("Equal", 63, 64))
sketch2.addConstraint(Sketcher.Constraint("Equal", 64, 65))
sketch2.addConstraint(Sketcher.Constraint("PointOnObject", 0, 3, -2))
sketch2.addConstraint(Sketcher.Constraint("PointOnObject", 1, 3, -2))
sketch2.addConstraint(Sketcher.Constraint("PointOnObject", 2, 3, -2))
sketch2.addConstraint(Sketcher.Constraint("PointOnObject", 3, 3, -2))
sketch2.addConstraint(Sketcher.Constraint("PointOnObject", 4, 3, -2))
sketch2.addConstraint(Sketcher.Constraint("PointOnObject", 5, 3, -2))
sketch2.addConstraint(Sketcher.Constraint("PointOnObject", 6, 3, -2))
sketch2.addConstraint(Sketcher.Constraint("PointOnObject", 7, 3, -2))
sketch2.addConstraint(Sketcher.Constraint("PointOnObject", 8, 3, -2))
sketch2.addConstraint(Sketcher.Constraint("PointOnObject", 9, 3, -2))
sketch2.addConstraint(Sketcher.Constraint("PointOnObject", 10, 3, -2))
sketch2.addConstraint(Sketcher.Constraint("PointOnObject", 11, 3, -2))
sketch2.addConstraint(Sketcher.Constraint("PointOnObject", 12, 3, -2))
sketch2.addConstraint(Sketcher.Constraint("PointOnObject", 13, 3, -2))
sketch2.addConstraint(Sketcher.Constraint("PointOnObject", 14, 3, -2))
sketch2.addConstraint(Sketcher.Constraint("PointOnObject", 15, 3, -2))
sketch2.addConstraint(Sketcher.Constraint("PointOnObject", 16, 3, -2))
sketch2.addConstraint(Sketcher.Constraint("PointOnObject", 17, 3, -2))
sketch2.addConstraint(Sketcher.Constraint("PointOnObject", 18, 3, -2))
sketch2.addConstraint(Sketcher.Constraint("PointOnObject", 19, 3, -2))
sketch2.addConstraint(Sketcher.Constraint("PointOnObject", 20, 3, -2))
sketch2.addConstraint(Sketcher.Constraint("PointOnObject", 21, 3, -2))
sketch2.addConstraint(Sketcher.Constraint("PointOnObject", 22, 3, -2))
sketch2.addConstraint(Sketcher.Constraint("PointOnObject", 23, 3, -2))
sketch2.addConstraint(Sketcher.Constraint("PointOnObject", 24, 3, -2))
sketch2.addConstraint(Sketcher.Constraint("PointOnObject", 25, 3, -2))
sketch2.addConstraint(Sketcher.Constraint("PointOnObject", 26, 3, -2))
sketch2.addConstraint(Sketcher.Constraint("PointOnObject", 27, 3, -2))
sketch2.addConstraint(Sketcher.Constraint("PointOnObject", 28, 3, -2))
sketch2.addConstraint(Sketcher.Constraint("PointOnObject", 29, 3, -2))
sketch2.addConstraint(Sketcher.Constraint("PointOnObject", 30, 3, -2))
sketch2.addConstraint(Sketcher.Constraint("PointOnObject", 31, 3, -2))
sketch2.addConstraint(Sketcher.Constraint("PointOnObject", 32, 3, -2))
sketch2.addConstraint(Sketcher.Constraint("PointOnObject", 33, 3, -2))
sketch2.addConstraint(Sketcher.Constraint("PointOnObject", 34, 3, -2))
sketch2.addConstraint(Sketcher.Constraint("PointOnObject", 35, 3, -2))
sketch2.addConstraint(Sketcher.Constraint("PointOnObject", 36, 3, -2))
sketch2.addConstraint(Sketcher.Constraint("PointOnObject", 37, 3, -2))
sketch2.addConstraint(Sketcher.Constraint("PointOnObject", 38, 3, -2))
sketch2.addConstraint(Sketcher.Constraint("PointOnObject", 39, 3, -2))
sketch2.addConstraint(Sketcher.Constraint("PointOnObject", 40, 3, -2))
sketch2.addConstraint(Sketcher.Constraint("PointOnObject", 41, 3, -2))
sketch2.addConstraint(Sketcher.Constraint("PointOnObject", 42, 3, -2))
sketch2.addConstraint(Sketcher.Constraint("PointOnObject", 43, 3, -2))
sketch2.addConstraint(Sketcher.Constraint("PointOnObject", 44, 3, -2))
sketch2.addConstraint(Sketcher.Constraint("PointOnObject", 45, 3, -2))
sketch2.addConstraint(Sketcher.Constraint("PointOnObject", 46, 3, -2))
sketch2.addConstraint(Sketcher.Constraint("PointOnObject", 47, 3, -2))
sketch2.addConstraint(Sketcher.Constraint("PointOnObject", 48, 3, -2))
sketch2.addConstraint(Sketcher.Constraint("PointOnObject", 49, 3, -2))
sketch2.addConstraint(Sketcher.Constraint("PointOnObject", 50, 3, -2))
sketch2.addConstraint(Sketcher.Constraint("PointOnObject", 51, 3, -2))
sketch2.addConstraint(Sketcher.Constraint("PointOnObject", 52, 3, -2))
sketch2.addConstraint(Sketcher.Constraint("PointOnObject", 53, 3, -2))
sketch2.addConstraint(Sketcher.Constraint("PointOnObject", 54, 3, -2))
sketch2.addConstraint(Sketcher.Constraint("PointOnObject", 55, 3, -2))
sketch2.addConstraint(Sketcher.Constraint("PointOnObject", 56, 3, -2))
sketch2.addConstraint(Sketcher.Constraint("PointOnObject", 57, 3, -2))
sketch2.addConstraint(Sketcher.Constraint("PointOnObject", 58, 3, -2))
sketch2.addConstraint(Sketcher.Constraint("PointOnObject", 59, 3, -2))
sketch2.addConstraint(Sketcher.Constraint("PointOnObject", 60, 3, -2))
sketch2.addConstraint(Sketcher.Constraint("PointOnObject", 61, 3, -2))
sketch2.addConstraint(Sketcher.Constraint("PointOnObject", 62, 3, -2))
sketch2.addConstraint(Sketcher.Constraint("PointOnObject", 63, 3, -2))
sketch2.addConstraint(Sketcher.Constraint("PointOnObject", 64, 3, -2))
sketch2.addConstraint(Sketcher.Constraint("PointOnObject", 65, 3, -2))
sketch2.addConstraint(Sketcher.Constraint("Diameter", 0, Q("3.5 mm")))
sketch2.addConstraint(Sketcher.Constraint("DistanceY", 0, 3, -1, 1, Q("460 mm")))
sketch2.addConstraint(Sketcher.Constraint("DistanceY", 1, 3, -1, 1, Q("1090 mm")))
sketch2.addConstraint(Sketcher.Constraint("DistanceY", 2, 3, -1, 1, Q("790 mm")))
sketch2.addConstraint(Sketcher.Constraint("DistanceY", 3, 3, -1, 1, Q("160 mm")))
sketch2.addConstraint(Sketcher.Constraint("DistanceY", 4, 3, -1, 1, Q("580 mm")))
sketch2.addConstraint(Sketcher.Constraint("DistanceY", 5, 3, -1, 1, Q("640 mm")))
sketch2.addConstraint(Sketcher.Constraint("DistanceY", 6, 3, -1, 1, Q("190 mm")))
sketch2.addConstraint(Sketcher.Constraint("DistanceY", 7, 3, -1, 1, Q("10 mm")))
sketch2.addConstraint(Sketcher.Constraint("DistanceY", 8, 3, -1, 1, Q("130 mm")))
sketch2.addConstraint(Sketcher.Constraint("DistanceY", 9, 3, -1, 1, Q("730 mm")))
sketch2.addConstraint(Sketcher.Constraint("DistanceY", 10, 3, -1, 1, Q("100 mm")))
sketch2.addConstraint(Sketcher.Constraint("DistanceY", 11, 3, -1, 1, Q("610 mm")))
sketch2.addConstraint(Sketcher.Constraint("DistanceY", 12, 3, -1, 1, Q("40 mm")))
sketch2.addConstraint(Sketcher.Constraint("DistanceY", 13, 3, -1, 1, Q("1180 mm")))
sketch2.addConstraint(Sketcher.Constraint("DistanceY", 14, 3, -1, 1, Q("340 mm")))
sketch2.addConstraint(Sketcher.Constraint("DistanceY", 15, 3, -1, 1, Q("1150 mm")))
sketch2.addConstraint(Sketcher.Constraint("DistanceY", 16, 3, -1, 1, Q("1120 mm")))
sketch2.addConstraint(Sketcher.Constraint("DistanceY", 17, 3, -1, 1, Q("760 mm")))
sketch2.addConstraint(Sketcher.Constraint("DistanceY", 18, 3, -1, 1, Q("940 mm")))
sketch2.addConstraint(Sketcher.Constraint("DistanceY", 19, 3, -1, 1, Q("1030 mm")))
sketch2.addConstraint(Sketcher.Constraint("DistanceY", 20, 3, -1, 1, Q("700 mm")))
sketch2.addConstraint(Sketcher.Constraint("DistanceY", 21, 3, -1, 1, Q("400 mm")))
sketch2.addConstraint(Sketcher.Constraint("DistanceY", 22, 3, -1, 1, Q("550 mm")))
sketch2.addConstraint(Sketcher.Constraint("DistanceY", 23, 3, -1, 1, Q("490 mm")))
sketch2.addConstraint(Sketcher.Constraint("DistanceY", 24, 3, -1, 1, Q("910 mm")))
sketch2.addConstraint(Sketcher.Constraint("DistanceY", 25, 3, -1, 1, Q("220 mm")))
sketch2.addConstraint(Sketcher.Constraint("DistanceY", 26, 3, -1, 1, Q("670 mm")))
sketch2.addConstraint(Sketcher.Constraint("DistanceY", 27, 3, -1, 1, Q("280 mm")))
sketch2.addConstraint(Sketcher.Constraint("DistanceY", 28, 3, -1, 1, Q("970 mm")))
sketch2.addConstraint(Sketcher.Constraint("DistanceY", 29, 3, -1, 1, Q("850 mm")))
sketch2.addConstraint(Sketcher.Constraint("DistanceY", 30, 3, -1, 1, Q("310 mm")))
sketch2.addConstraint(Sketcher.Constraint("DistanceY", 31, 3, -1, 1, Q("70 mm")))
sketch2.addConstraint(Sketcher.Constraint("DistanceY", 32, 3, -1, 1, Q("1060 mm")))
sketch2.addConstraint(Sketcher.Constraint("DistanceY", 33, 3, -1, 1, Q("880 mm")))
sketch2.addConstraint(Sketcher.Constraint("DistanceY", 34, 3, -1, 1, Q("1000 mm")))
sketch2.addConstraint(Sketcher.Constraint("DistanceY", 35, 3, -1, 1, Q("520 mm")))
sketch2.addConstraint(Sketcher.Constraint("DistanceY", 36, 3, -1, 1, Q("250 mm")))
sketch2.addConstraint(Sketcher.Constraint("DistanceY", 37, 3, -1, 1, Q("370 mm")))
sketch2.addConstraint(Sketcher.Constraint("DistanceY", 38, 3, -1, 1, Q("820 mm")))
sketch2.addConstraint(Sketcher.Constraint("DistanceY", 39, 3, -1, 1, Q("430 mm")))
sketch2.addConstraint(Sketcher.Constraint("DistanceY", 40, 3, -1, 1, Q("1420 mm")))
sketch2.addConstraint(Sketcher.Constraint("DistanceY", 41, 3, -1, 1, Q("1900 mm")))
sketch2.addConstraint(Sketcher.Constraint("DistanceY", 42, 3, -1, 1, Q("1450 mm")))
sketch2.addConstraint(Sketcher.Constraint("DistanceY", 43, 3, -1, 1, Q("1330 mm")))
sketch2.addConstraint(Sketcher.Constraint("DistanceY", 44, 3, -1, 1, Q("1510 mm")))
sketch2.addConstraint(Sketcher.Constraint("DistanceY", 45, 3, -1, 1, Q("1540 mm")))
sketch2.addConstraint(Sketcher.Constraint("DistanceY", 46, 3, -1, 1, Q("1930 mm")))
sketch2.addConstraint(Sketcher.Constraint("DistanceY", 47, 3, -1, 1, Q("1960 mm")))
sketch2.addConstraint(Sketcher.Constraint("DistanceY", 48, 3, -1, 1, Q("1480 mm")))
sketch2.addConstraint(Sketcher.Constraint("DistanceY", 49, 3, -1, 1, Q("1390 mm")))
sketch2.addConstraint(Sketcher.Constraint("DistanceY", 50, 3, -1, 1, Q("1870 mm")))
sketch2.addConstraint(Sketcher.Constraint("DistanceY", 51, 3, -1, 1, Q("1570 mm")))
sketch2.addConstraint(Sketcher.Constraint("DistanceY", 52, 3, -1, 1, Q("1360 mm")))
sketch2.addConstraint(Sketcher.Constraint("DistanceY", 53, 3, -1, 1, Q("1210 mm")))
sketch2.addConstraint(Sketcher.Constraint("DistanceY", 54, 3, -1, 1, Q("1810 mm")))
sketch2.addConstraint(Sketcher.Constraint("DistanceY", 55, 3, -1, 1, Q("1690 mm")))
sketch2.addConstraint(Sketcher.Constraint("DistanceY", 56, 3, -1, 1, Q("1840 mm")))
sketch2.addConstraint(Sketcher.Constraint("DistanceY", 57, 3, -1, 1, Q("1630 mm")))
sketch2.addConstraint(Sketcher.Constraint("DistanceY", 58, 3, -1, 1, Q("1240 mm")))
sketch2.addConstraint(Sketcher.Constraint("DistanceY", 59, 3, -1, 1, Q("1270 mm")))
sketch2.addConstraint(Sketcher.Constraint("DistanceY", 60, 3, -1, 1, Q("1600 mm")))
sketch2.addConstraint(Sketcher.Constraint("DistanceY", 61, 3, -1, 1, Q("1780 mm")))
sketch2.addConstraint(Sketcher.Constraint("DistanceY", 62, 3, -1, 1, Q("1300 mm")))
sketch2.addConstraint(Sketcher.Constraint("DistanceY", 63, 3, -1, 1, Q("1720 mm")))
sketch2.addConstraint(Sketcher.Constraint("DistanceY", 64, 3, -1, 1, Q("1750 mm")))
sketch2.addConstraint(Sketcher.Constraint("DistanceY", 65, 3, -1, 1, Q("1660 mm")))
doc.recompute()
hole = doc.addObject("PartDesign::Hole", "Hole")
body.addObject(hole)
hole.Profile = sketch2
hole.ThreadType = "None"
hole.Diameter = 3.5
hole.DepthType = "ThroughAll"
hole.HoleCutType = "Counterbore"
hole.HoleCutDiameter = 6
hole.HoleCutDepth = 4.5

doc.recompute()
